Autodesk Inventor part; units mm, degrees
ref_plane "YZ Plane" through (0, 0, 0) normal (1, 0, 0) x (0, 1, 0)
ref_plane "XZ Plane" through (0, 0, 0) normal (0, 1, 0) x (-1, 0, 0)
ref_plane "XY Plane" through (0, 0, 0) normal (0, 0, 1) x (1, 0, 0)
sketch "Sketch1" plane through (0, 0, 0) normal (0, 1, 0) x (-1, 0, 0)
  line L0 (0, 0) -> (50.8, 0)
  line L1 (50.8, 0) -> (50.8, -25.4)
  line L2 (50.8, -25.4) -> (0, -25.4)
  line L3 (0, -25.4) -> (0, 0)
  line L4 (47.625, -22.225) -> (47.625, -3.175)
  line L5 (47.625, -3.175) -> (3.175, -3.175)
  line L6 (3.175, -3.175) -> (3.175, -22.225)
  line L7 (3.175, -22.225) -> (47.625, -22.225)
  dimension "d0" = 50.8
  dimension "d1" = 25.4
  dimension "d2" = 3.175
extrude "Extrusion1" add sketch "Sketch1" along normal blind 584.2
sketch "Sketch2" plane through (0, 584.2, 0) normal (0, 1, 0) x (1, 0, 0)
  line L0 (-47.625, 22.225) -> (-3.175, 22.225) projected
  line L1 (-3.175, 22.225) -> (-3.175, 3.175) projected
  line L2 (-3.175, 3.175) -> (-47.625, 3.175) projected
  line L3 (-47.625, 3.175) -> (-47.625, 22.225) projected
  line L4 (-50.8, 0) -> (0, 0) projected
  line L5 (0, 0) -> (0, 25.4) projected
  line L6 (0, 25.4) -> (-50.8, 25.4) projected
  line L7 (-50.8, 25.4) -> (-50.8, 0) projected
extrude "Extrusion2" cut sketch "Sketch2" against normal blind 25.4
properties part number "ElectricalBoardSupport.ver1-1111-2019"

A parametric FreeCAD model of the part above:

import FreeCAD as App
import Part
import Sketcher

V = App.Vector
Q = App.Units.Quantity

doc = App.newDocument("Part")
body = doc.addObject("PartDesign::Body", "Body")

# Sketch on XZ plane
sketch1 = body.newObject("Sketcher::SketchObject", "Sketch")
sketch1.AttachmentSupport = (doc.getObject("XZ_Plane"), [""])
sketch1.MapMode = "FlatFace"
sketch1.addGeometry(Part.LineSegment(V(-51, 0, 0), V(0, 0, 0)), False)
sketch1.addGeometry(Part.LineSegment(V(0, 0, 0), V(0, -25, 0)), False)
sketch1.addGeometry(Part.LineSegment(V(0, -25, 0), V(-51, -25, 0)), False)
sketch1.addGeometry(Part.LineSegment(V(-51, -25, 0), V(-51, 0, 0)), False)
sketch1.addGeometry(Part.LineSegment(V(-48, -3, 0), V(-48, -22, 0)), False)
sketch1.addGeometry(Part.LineSegment(V(-48, -22, 0), V(-3, -22, 0)), False)
sketch1.addGeometry(Part.LineSegment(V(-3, -22, 0), V(-3, -3, 0)), False)
sketch1.addGeometry(Part.LineSegment(V(-3, -3, 0), V(-48, -3, 0)), False)
sketch1.addConstraint(Sketcher.Constraint("Coincident", 0, 2, 1, 1))
sketch1.addConstraint(Sketcher.Constraint("Coincident", 1, 2, 2, 1))
sketch1.addConstraint(Sketcher.Constraint("Coincident", 2, 2, 3, 1))
sketch1.addConstraint(Sketcher.Constraint("Coincident", 3, 2, 0, 1))
sketch1.addConstraint(Sketcher.Constraint("Coincident", 4, 2, 5, 1))
sketch1.addConstraint(Sketcher.Constraint("Coincident", 5, 2, 6, 1))
sketch1.addConstraint(Sketcher.Constraint("Coincident", 6, 2, 7, 1))
sketch1.addConstraint(Sketcher.Constraint("Coincident", 7, 2, 4, 1))
sketch1.addConstraint(Sketcher.Constraint("Horizontal", 0))
sketch1.addConstraint(Sketcher.Constraint("Vertical", 1))
sketch1.addConstraint(Sketcher.Constraint("Horizontal", 2))
sketch1.addConstraint(Sketcher.Constraint("Vertical", 3))
sketch1.addConstraint(Sketcher.Constraint("Vertical", 4))
sketch1.addConstraint(Sketcher.Constraint("Horizontal", 5))
sketch1.addConstraint(Sketcher.Constraint("Vertical", 6))
sketch1.addConstraint(Sketcher.Constraint("Horizontal", 7))
sketch1.addConstraint(Sketcher.Constraint("Coincident", 0, 2, -1, 1))
sketch1.addConstraint(Sketcher.Constraint("DistanceX", 0, 1, 0, 2, Q("2 in")))
sketch1.addConstraint(Sketcher.Constraint("DistanceY", 1, 2, 1, 1, Q("1 in")))
sketch1.addConstraint(Sketcher.Constraint("DistanceX", 5, 2, -1, 1, Q("0.125 in")))
sketch1.addConstraint(Sketcher.Constraint("DistanceY", 6, 2, -1, 1, Q("0.125 in")))
sketch1.addConstraint(Sketcher.Constraint("DistanceX", 2, 2, 4, 2, Q("0.125 in")))
sketch1.addConstraint(Sketcher.Constraint("DistanceY", 2, 2, 4, 2, Q("0.125 in")))
pad1 = body.newObject("PartDesign::Pad", "Pad")
pad1.Profile = sketch1
pad1.Length = Q("23 in")
pad1.Reversed = True

# Sketch on XZ plane
sketch2 = body.newObject("Sketcher::SketchObject", "Sketch001")
sketch2.AttachmentSupport = (doc.getObject("XZ_Plane"), [""])
sketch2.MapMode = "FlatFace"
sketch2.AttachmentOffset = App.Placement(V(0, 0, -23 * 25.4), App.Rotation())
sketch2.addGeometry(Part.LineSegment(V(-51, -25, 0), V(-51, 0, 0)), False)
sketch2.addGeometry(Part.LineSegment(V(-51, 0, 0), V(0, 0, 0)), False)
sketch2.addGeometry(Part.LineSegment(V(0, 0, 0), V(0, -25, 0)), False)
sketch2.addGeometry(Part.LineSegment(V(0, -25, 0), V(-51, -25, 0)), False)
sketch2.addGeometry(Part.LineSegment(V(-48, -3, 0), V(-48, -22, 0)), False)
sketch2.addGeometry(Part.LineSegment(V(-48, -22, 0), V(-3, -22, 0)), False)
sketch2.addGeometry(Part.LineSegment(V(-3, -22, 0), V(-3, -3, 0)), False)
sketch2.addGeometry(Part.LineSegment(V(-3, -3, 0), V(-48, -3, 0)), False)
sketch2.addConstraint(Sketcher.Constraint("Coincident", 0, 2, 1, 1))
sketch2.addConstraint(Sketcher.Constraint("Coincident", 1, 2, 2, 1))
sketch2.addConstraint(Sketcher.Constraint("Coincident", 2, 2, 3, 1))
sketch2.addConstraint(Sketcher.Constraint("Coincident", 3, 2, 0, 1))
sketch2.addConstraint(Sketcher.Constraint("Coincident", 4, 2, 5, 1))
sketch2.addConstraint(Sketcher.Constraint("Coincident", 5, 2, 6, 1))
sketch2.addConstraint(Sketcher.Constraint("Coincident", 6, 2, 7, 1))
sketch2.addConstraint(Sketcher.Constraint("Coincident", 7, 2, 4, 1))
sketch2.addConstraint(Sketcher.Constraint("Vertical", 0))
sketch2.addConstraint(Sketcher.Constraint("Horizontal", 1))
sketch2.addConstraint(Sketcher.Constraint("Vertical", 2))
sketch2.addConstraint(Sketcher.Constraint("Horizontal", 3))
sketch2.addConstraint(Sketcher.Constraint("Vertical", 4))
sketch2.addConstraint(Sketcher.Constraint("Horizontal", 5))
sketch2.addConstraint(Sketcher.Constraint("Vertical", 6))
sketch2.addConstraint(Sketcher.Constraint("Horizontal", 7))
sketch2.addConstraint(Sketcher.Constraint("Coincident", 1, 2, -1, 1))
sketch2.addConstraint(Sketcher.Constraint("DistanceX", 1, 1, 1, 2, Q("2 in")))
sketch2.addConstraint(Sketcher.Constraint("DistanceY", 0, 1, 0, 2, Q("1 in")))
sketch2.addConstraint(Sketcher.Constraint("DistanceX", 5, 1, 5, 2, Q("1.75 in")))
sketch2.addConstraint(Sketcher.Constraint("DistanceY", 4, 2, 4, 1, Q("0.75 in")))
sketch2.addConstraint(Sketcher.Constraint("DistanceX", 4, 2, -1, 1, Q("1.875 in")))
sketch2.addConstraint(Sketcher.Constraint("DistanceY", 4, 2, -1, 1, Q("0.875 in")))
pocket1 = body.newObject("PartDesign::Pocket", "Pocket")
pocket1.Profile = sketch2
pocket1.Length = Q("1 in")
pocket1.Reversed = True

doc.recompute()
